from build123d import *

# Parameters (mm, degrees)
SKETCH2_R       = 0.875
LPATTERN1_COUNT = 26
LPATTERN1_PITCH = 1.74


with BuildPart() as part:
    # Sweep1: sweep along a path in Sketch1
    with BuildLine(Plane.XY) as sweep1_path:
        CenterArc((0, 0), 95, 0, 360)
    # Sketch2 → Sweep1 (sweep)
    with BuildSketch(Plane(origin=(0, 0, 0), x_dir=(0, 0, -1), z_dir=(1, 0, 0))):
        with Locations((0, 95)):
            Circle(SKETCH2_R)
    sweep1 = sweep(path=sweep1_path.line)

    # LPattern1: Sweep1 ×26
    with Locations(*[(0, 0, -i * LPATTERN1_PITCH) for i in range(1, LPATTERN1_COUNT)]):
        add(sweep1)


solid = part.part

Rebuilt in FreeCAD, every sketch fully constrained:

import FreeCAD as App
import Part
import Sketcher

doc = App.newDocument("Part")
body = doc.addObject("PartDesign::Body", "Body")

sketch1 = body.newObject("Sketcher::SketchObject", "Sketch")
sketch1.AttachmentSupport = (doc.getObject("YZ_Plane"), [""])
sketch1.MapMode = "FlatFace"
sketch1.addGeometry(Part.Circle(App.Vector(95, 0, 0), App.Vector(0, 0, 1), 0.875), False)
sketch1.addConstraint([
    Sketcher.Constraint("PointOnObject", 0, 3, -1),
    Sketcher.Constraint("Diameter", 0, 1.75),
    Sketcher.Constraint("DistanceX", -1, 1, 0, 3, 95.0),
])

sketch2 = body.newObject("Sketcher::SketchObject", "Sketch001")
sketch2.AttachmentSupport = (doc.getObject("XY_Plane"), [""])
sketch2.MapMode = "FlatFace"
sketch2.addGeometry(Part.Circle(App.Vector(0, 0, 0), App.Vector(0, 0, 1), 95), False)
sketch2.addConstraint([
    Sketcher.Constraint("Coincident", 0, 3, -1, 1),
    Sketcher.Constraint("Diameter", 0, 190.0),
])
doc.recompute()

additivepipe = body.newObject("PartDesign::AdditivePipe", "AdditivePipe")
additivepipe.Profile = sketch1
additivepipe.Spine = (sketch2, ["Edge1"])
doc.recompute()

linearpattern = body.newObject("PartDesign::LinearPattern", "LinearPattern")
linearpattern.Originals = [additivepipe]
linearpattern.Direction = (doc.getObject("Z_Axis"), [""])
linearpattern.Mode = "offset"
linearpattern.Offset = 1.74
linearpattern.Occurrences = 26
linearpattern.Reversed = True
body.Tip = linearpattern

doc.recompute()
